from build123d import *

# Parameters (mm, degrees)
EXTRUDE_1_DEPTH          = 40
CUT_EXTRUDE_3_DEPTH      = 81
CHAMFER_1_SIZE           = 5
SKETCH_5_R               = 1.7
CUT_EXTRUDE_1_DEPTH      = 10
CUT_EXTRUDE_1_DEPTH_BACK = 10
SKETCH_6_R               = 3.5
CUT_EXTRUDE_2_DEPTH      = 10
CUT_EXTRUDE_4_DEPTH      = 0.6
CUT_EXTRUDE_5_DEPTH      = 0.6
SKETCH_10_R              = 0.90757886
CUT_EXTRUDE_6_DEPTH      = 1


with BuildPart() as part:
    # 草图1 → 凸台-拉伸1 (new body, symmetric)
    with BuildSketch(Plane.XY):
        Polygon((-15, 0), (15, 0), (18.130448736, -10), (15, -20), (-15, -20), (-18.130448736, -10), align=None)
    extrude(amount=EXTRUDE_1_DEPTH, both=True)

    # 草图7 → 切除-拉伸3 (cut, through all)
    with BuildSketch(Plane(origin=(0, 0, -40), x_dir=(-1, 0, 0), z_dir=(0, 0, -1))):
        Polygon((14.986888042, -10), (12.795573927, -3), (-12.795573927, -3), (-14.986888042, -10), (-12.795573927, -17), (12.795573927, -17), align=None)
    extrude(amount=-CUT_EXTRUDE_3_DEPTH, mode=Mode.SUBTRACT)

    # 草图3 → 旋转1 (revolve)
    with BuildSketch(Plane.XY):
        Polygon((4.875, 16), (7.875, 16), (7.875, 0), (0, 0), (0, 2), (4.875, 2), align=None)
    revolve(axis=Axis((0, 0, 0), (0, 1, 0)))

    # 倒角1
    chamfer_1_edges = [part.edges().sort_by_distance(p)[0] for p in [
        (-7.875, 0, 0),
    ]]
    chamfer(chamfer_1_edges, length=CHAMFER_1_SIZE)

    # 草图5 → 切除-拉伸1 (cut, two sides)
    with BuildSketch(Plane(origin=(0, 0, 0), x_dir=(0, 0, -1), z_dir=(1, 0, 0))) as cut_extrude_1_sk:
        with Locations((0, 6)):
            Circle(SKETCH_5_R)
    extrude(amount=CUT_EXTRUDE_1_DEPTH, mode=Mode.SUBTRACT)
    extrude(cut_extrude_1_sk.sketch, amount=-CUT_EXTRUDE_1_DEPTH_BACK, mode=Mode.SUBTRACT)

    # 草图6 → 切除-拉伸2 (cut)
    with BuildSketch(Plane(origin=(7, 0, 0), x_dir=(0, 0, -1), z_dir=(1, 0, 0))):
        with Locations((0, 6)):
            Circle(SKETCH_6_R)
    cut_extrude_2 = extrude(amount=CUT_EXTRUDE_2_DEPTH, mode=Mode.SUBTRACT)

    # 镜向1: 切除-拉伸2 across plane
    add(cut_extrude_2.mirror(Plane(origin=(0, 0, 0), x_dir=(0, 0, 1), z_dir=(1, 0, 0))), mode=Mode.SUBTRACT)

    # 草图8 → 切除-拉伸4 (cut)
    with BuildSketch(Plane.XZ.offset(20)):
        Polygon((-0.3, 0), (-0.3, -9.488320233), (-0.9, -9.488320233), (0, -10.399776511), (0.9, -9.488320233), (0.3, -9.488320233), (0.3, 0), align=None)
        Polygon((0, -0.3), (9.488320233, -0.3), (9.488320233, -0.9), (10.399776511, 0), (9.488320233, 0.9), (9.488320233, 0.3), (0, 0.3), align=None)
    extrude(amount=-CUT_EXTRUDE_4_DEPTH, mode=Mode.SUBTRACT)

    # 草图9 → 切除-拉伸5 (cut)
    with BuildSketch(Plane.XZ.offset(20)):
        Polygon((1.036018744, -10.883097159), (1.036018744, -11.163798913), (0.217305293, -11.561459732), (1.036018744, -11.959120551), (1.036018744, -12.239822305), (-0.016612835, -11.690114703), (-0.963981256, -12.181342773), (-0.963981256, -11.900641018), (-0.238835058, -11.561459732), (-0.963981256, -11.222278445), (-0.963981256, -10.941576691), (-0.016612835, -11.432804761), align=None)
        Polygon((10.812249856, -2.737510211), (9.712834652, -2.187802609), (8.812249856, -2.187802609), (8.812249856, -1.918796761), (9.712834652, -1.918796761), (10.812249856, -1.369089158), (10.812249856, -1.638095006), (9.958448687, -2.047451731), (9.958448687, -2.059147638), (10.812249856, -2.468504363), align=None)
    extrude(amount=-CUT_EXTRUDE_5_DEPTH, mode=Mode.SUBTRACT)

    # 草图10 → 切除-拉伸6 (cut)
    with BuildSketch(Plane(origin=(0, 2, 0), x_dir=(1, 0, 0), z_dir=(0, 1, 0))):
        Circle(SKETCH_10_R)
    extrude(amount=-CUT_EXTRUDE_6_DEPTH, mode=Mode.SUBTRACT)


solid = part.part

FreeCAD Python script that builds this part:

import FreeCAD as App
import Part
import Sketcher

V = App.Vector
Q = App.Units.Quantity


def edges_at(feature, points):
    """Names of the edges that pass closest to the given points."""
    edges = feature.Shape.Edges
    near = lambda p: min(range(len(edges)), key=lambda i: edges[i].distToShape(Part.Vertex(*p))[0])
    return sorted({f"Edge{near(p) + 1}" for p in points})


def add_polygon(sketch, points):
    """Adds a closed chain of lines whose ends are joined by coincident constraints."""
    first, n = sketch.GeometryCount, len(points)
    for a, b in zip(points, points[1:] + points[:1]):
        sketch.addGeometry(Part.LineSegment(App.Vector(*a, 0), App.Vector(*b, 0)), False)
    for i in range(n):
        sketch.addConstraint(Sketcher.Constraint("Coincident", first + i, 2, first + (i + 1) % n, 1))

doc = App.newDocument("Part")
body = doc.addObject("PartDesign::Body", "Body")

sketch1 = doc.addObject("Sketcher::SketchObject", "Sketch")
body.addObject(sketch1)
sketch1.AttachmentSupport = (doc.XY_Plane, [""])
sketch1.MapMode = "FlatFace"
add_polygon(sketch1, [(15, 0), (-15, 0), (-18, -10), (-15, -20), (15, -20), (18, -10)])
sketch1.addConstraint([
    Sketcher.Constraint("Horizontal", 0),
    Sketcher.Constraint("Horizontal", 3),
    Sketcher.Constraint("Symmetric", 0, 2, 5, 2, -1, 1),
    Sketcher.Constraint("Symmetric", 1, 2, 4, 2, -2),
    Sketcher.Constraint("Parallel", 1, 4),
    Sketcher.Constraint("Parallel", 2, 5),
    Sketcher.Constraint("Vertical", 0, 2, 2, 2),
    Sketcher.Constraint("DistanceX", 0, 2, 0, 1, Q("30 mm")),
    Sketcher.Constraint("DistanceY", 1, 2, -1, 1, Q("10 mm")),
    Sketcher.Constraint("DistanceX", 1, 2, -1, 1, Q("18.130449 mm")),
])
pad1 = doc.addObject("PartDesign::Pad", "Pad")
body.addObject(pad1)
pad1.Profile = sketch1
pad1.Length = 80
pad1.Midplane = True

sketch2 = doc.addObject("Sketcher::SketchObject", "Sketch001")
body.addObject(sketch2)
sketch2.AttachmentSupport = (doc.XY_Plane, [""])
sketch2.MapMode = "FlatFace"
sketch2.AttachmentOffset = App.Placement(V(0, 0, -40), App.Rotation())
add_polygon(sketch2, [(-15, -10), (-13, -3), (13, -3), (15, -10), (13, -17), (-13, -17)])
sketch2.addConstraint([
    Sketcher.Constraint("Horizontal", 1),
    Sketcher.Constraint("Horizontal", 4),
    Sketcher.Constraint("Symmetric", 2, 2, 5, 2, -2),
    Sketcher.Constraint("Parallel", 0, 3),
    Sketcher.Constraint("Parallel", 2, 5),
    Sketcher.Constraint("Vertical", 1, 2, 3, 2),
    Sketcher.Constraint("Vertical", 0, 2, 4, 2),
    Sketcher.Constraint("DistanceY", 0, 2, -1, 1, Q("3 mm")),
    Sketcher.Constraint("DistanceY", 2, 2, -1, 1, Q("10 mm")),
    Sketcher.Constraint("DistanceX", 1, 1, 1, 2, Q("25.591148 mm")),
    Sketcher.Constraint("DistanceX", -1, 1, 2, 2, Q("14.986888 mm")),
])
pocket1 = doc.addObject("PartDesign::Pocket", "Pocket")
body.addObject(pocket1)
pocket1.Profile = sketch2
pocket1.Type = "ThroughAll"
pocket1.Reversed = True

sketch3 = doc.addObject("Sketcher::SketchObject", "Sketch002")
body.addObject(sketch3)
sketch3.AttachmentSupport = (doc.XY_Plane, [""])
sketch3.MapMode = "FlatFace"
add_polygon(sketch3, [(7.9, 16), (4.9, 16), (4.9, 2), (0, 2), (0, 0), (7.9, 0)])
sketch3.addConstraint([
    Sketcher.Constraint("Horizontal", 0),
    Sketcher.Constraint("Vertical", 1),
    Sketcher.Constraint("Horizontal", 2),
    Sketcher.Constraint("Vertical", 3),
    Sketcher.Constraint("Horizontal", 4),
    Sketcher.Constraint("Vertical", 5),
    Sketcher.Constraint("Coincident", 3, 2, -1, 1),
    Sketcher.Constraint("DistanceX", 0, 2, 0, 1, Q("3 mm")),
    Sketcher.Constraint("DistanceY", 1, 2, 1, 1, Q("14 mm")),
    Sketcher.Constraint("DistanceY", 3, 2, 3, 1, Q("2 mm")),
    Sketcher.Constraint("DistanceX", 2, 2, 2, 1, Q("4.875 mm")),
])
revolution = doc.addObject("PartDesign::Revolution", "Revolution")
body.addObject(revolution)
revolution.Profile = sketch3
revolution.ReferenceAxis = (sketch3, ["V_Axis"])
revolution.Angle = 360
doc.recompute()

chamfer = doc.addObject("PartDesign::Chamfer", "Chamfer")
body.addObject(chamfer)
chamfer.Base = (revolution, edges_at(revolution, [(-7.875, 0, 0)]))
chamfer.Size = 5

sketch4 = doc.addObject("Sketcher::SketchObject", "Sketch003")
body.addObject(sketch4)
sketch4.AttachmentSupport = (doc.YZ_Plane, [""])
sketch4.MapMode = "FlatFace"
sketch4.addGeometry(Part.Circle(V(6, 0, 0), V(0, 0, 1), 1.7), False)
sketch4.addConstraint([
    Sketcher.Constraint("PointOnObject", 0, 3, -1),
    Sketcher.Constraint("Diameter", 0, Q("3.4 mm")),
    Sketcher.Constraint("DistanceX", -1, 1, 0, 3, Q("6 mm")),
])
pocket2 = doc.addObject("PartDesign::Pocket", "Pocket001")
body.addObject(pocket2)
pocket2.Profile = sketch4
pocket2.Type = "ThroughAll"
pocket2.Midplane = True

sketch5 = doc.addObject("Sketcher::SketchObject", "Sketch004")
body.addObject(sketch5)
sketch5.AttachmentSupport = (doc.YZ_Plane, [""])
sketch5.MapMode = "FlatFace"
sketch5.AttachmentOffset = App.Placement(V(0, 0, 7), App.Rotation())
sketch5.addGeometry(Part.Circle(V(6, 0, 0), V(0, 0, 1), 3.5), False)
sketch5.addConstraint([
    Sketcher.Constraint("PointOnObject", 0, 3, -1),
    Sketcher.Constraint("Diameter", 0, Q("7 mm")),
    Sketcher.Constraint("DistanceX", -1, 1, 0, 3, Q("6 mm")),
])
pocket3 = doc.addObject("PartDesign::Pocket", "Pocket002")
body.addObject(pocket3)
pocket3.Profile = sketch5
pocket3.Length = 10
pocket3.Reversed = True
doc.recompute()

mirrored = doc.addObject("PartDesign::Mirrored", "Mirrored")
body.addObject(mirrored)
mirrored.Originals = [pocket3]
mirrored.MirrorPlane = (doc.YZ_Plane, [""])
body.Tip = mirrored

sketch6 = doc.addObject("Sketcher::SketchObject", "Sketch005")
body.addObject(sketch6)
sketch6.AttachmentSupport = (doc.XZ_Plane, [""])
sketch6.MapMode = "FlatFace"
sketch6.AttachmentOffset = App.Placement(V(0, 0, 20), App.Rotation())
add_polygon(sketch6, [(0, 0), (-0.3, 0), (-0.3, -9.49), (-0.9, -9.49), (0, -10.4), (0.9, -9.49), (0.3, -9.49), (0.3, -0.3), (9.49, -0.3), (9.49, -0.9), (10.4, 0), (9.49, 0.9), (9.49, 0.3), (0, 0.3)])
sketch6.addConstraint([
    Sketcher.Constraint("Horizontal", 0),
    Sketcher.Constraint("Vertical", 1),
    Sketcher.Constraint("Horizontal", 2),
    Sketcher.Constraint("Horizontal", 5),
    Sketcher.Constraint("Vertical", 6),
    Sketcher.Constraint("Horizontal", 7),
    Sketcher.Constraint("Vertical", 8),
    Sketcher.Constraint("Vertical", 11),
    Sketcher.Constraint("Horizontal", 12),
    Sketcher.Constraint("Vertical", 13),
    Sketcher.Constraint("Coincident", 13, 2, -1, 1),
    Sketcher.Constraint("Symmetric", 2, 2, 4, 2, -2),
    Sketcher.Constraint("Symmetric", 8, 2, 10, 2, -1),
    Sketcher.Constraint("PointOnObject", 3, 2, -2),
    Sketcher.Constraint("PointOnObject", 9, 2, -1),
    Sketcher.Constraint("Perpendicular", 3, 9),
    Sketcher.Constraint("Equal", 2, 5),
    Sketcher.Constraint("Equal", 12, 1),
    Sketcher.Constraint("Equal", 7, 6),
    Sketcher.Constraint("Equal", 5, 8),
    Sketcher.Constraint("Equal", 8, 11),
    Sketcher.Constraint("DistanceX", 0, 2, 0, 1, Q("0.3 mm")),
    Sketcher.Constraint("DistanceX", 2, 2, 2, 1, Q("0.6 mm")),
    Sketcher.Constraint("DistanceX", 7, 1, 7, 2, Q("9.18832 mm")),
    Sketcher.Constraint("Distance", 3, Q("1.280919 mm")),
])
pocket4 = doc.addObject("PartDesign::Pocket", "Pocket003")
body.addObject(pocket4)
pocket4.Profile = sketch6
pocket4.Length = 0.6

sketch7 = doc.addObject("Sketcher::SketchObject", "Sketch006")
body.addObject(sketch7)
sketch7.AttachmentSupport = (doc.XZ_Plane, [""])
sketch7.MapMode = "FlatFace"
sketch7.AttachmentOffset = App.Placement(V(0, 0, 20), App.Rotation())
add_polygon(sketch7, [(1.036, -11.164), (1.036, -10.883), (-0.017, -11.433), (-0.964, -10.942), (-0.964, -11.222), (-0.239, -11.561), (-0.964, -11.901), (-0.964, -12.181), (-0.017, -11.69), (1.036, -12.24), (1.036, -11.959), (0.217, -11.561)])
add_polygon(sketch7, [(9.713, -2.188), (10.812, -2.738), (10.812, -2.469), (9.958, -2.059), (9.958, -2.047), (10.812, -1.638), (10.812, -1.369), (9.713, -1.919), (8.812, -1.919), (8.812, -2.188)])
sketch7.addConstraint([
    Sketcher.Constraint("Vertical", 0),
    Sketcher.Constraint("Vertical", 3),
    Sketcher.Constraint("Vertical", 6),
    Sketcher.Constraint("Vertical", 9),
    Sketcher.Constraint("Vertical", 13),
    Sketcher.Constraint("Vertical", 15),
    Sketcher.Constraint("Vertical", 17),
    Sketcher.Constraint("Horizontal", 19),
    Sketcher.Constraint("Vertical", 20),
    Sketcher.Constraint("Horizontal", 21),
    Sketcher.Constraint("Horizontal", 4, 2, 10, 2),
    Sketcher.Constraint("Vertical", 3, 2, 5, 2),
    Sketcher.Constraint("Vertical", 1, 2, 7, 2),
    Sketcher.Constraint("Vertical", 0, 2, 8, 2),
    Sketcher.Constraint("Vertical", 13, 2, 16, 2),
    Sketcher.Constraint("Vertical", 18, 2, 21, 2),
    Sketcher.Constraint("Equal", 0, 3),
    Sketcher.Constraint("Equal", 3, 6),
    Sketcher.Constraint("Equal", 6, 9),
    Sketcher.Constraint("Equal", 13, 17),
    Sketcher.Constraint("Equal", 17, 20),
    Sketcher.Constraint("Equal", 4, 5),
    Sketcher.Constraint("Equal", 2, 7),
    Sketcher.Constraint("Equal", 1, 8),
    Sketcher.Constraint("Equal", 14, 16),
    Sketcher.Constraint("Equal", 12, 18),
    Sketcher.Constraint("DistanceX", 2, 2, 0, 2, Q("2 mm")),
    Sketcher.Constraint("DistanceX", 19, 2, 16, 2, Q("2 mm")),
    Sketcher.Constraint("DistanceY", 0, 1, 0, 2, Q("0.280702 mm")),
    Sketcher.Constraint("DistanceY", 11, 2, -1, 1, Q("11.163799 mm")),
    Sketcher.Constraint("DistanceX", 14, 2, 13, 2, Q("0.853801 mm")),
    Sketcher.Constraint("DistanceY", 18, 2, 16, 2, Q("0.280702 mm")),
    Sketcher.Constraint("Distance", 2, Q("1.067151 mm")),
    Sketcher.Constraint("Distance", 4, Q("0.80055 mm")),
    Sketcher.Constraint("Distance", 10, Q("0.910179 mm")),
    Sketcher.Constraint("DistanceX", 19, 2, 19, 1, Q("0.900585 mm")),
    Sketcher.Constraint("DistanceY", 13, 1, 13, 2, Q("0.269006 mm")),
    Sketcher.Constraint("DistanceY", 15, 1, 15, 2, Q("0.011696 mm")),
    Sketcher.Constraint("DistanceX", -1, 1, 0, 2, Q("1.036019 mm")),
    Sketcher.Constraint("DistanceY", 3, 2, -1, 1, Q("11.222278 mm")),
    Sketcher.Constraint("DistanceY", 4, 2, -1, 1, Q("11.56146 mm")),
    Sketcher.Constraint("DistanceX", -1, 1, 12, 2, Q("10.81225 mm")),
    Sketcher.Constraint("DistanceY", 12, 2, -1, 1, Q("2.73751 mm")),
    Sketcher.Constraint("DistanceX", 1, 2, 0, 2, Q("1.052632 mm")),
])
pocket5 = doc.addObject("PartDesign::Pocket", "Pocket004")
body.addObject(pocket5)
pocket5.Profile = sketch7
pocket5.Length = 0.6

sketch8 = doc.addObject("Sketcher::SketchObject", "Sketch007")
body.addObject(sketch8)
sketch8.AttachmentSupport = (doc.XZ_Plane, [""])
sketch8.MapMode = "FlatFace"
sketch8.AttachmentOffset = App.Placement(V(0, 0, -2), App.Rotation())
sketch8.addGeometry(Part.Circle(V(0, 0, 0), V(0, 0, 1), 0.9), False)
sketch8.addConstraint([
    Sketcher.Constraint("Coincident", 0, 3, -1, 1),
    Sketcher.Constraint("Diameter", 0, Q("1.815158 mm")),
])
pocket6 = doc.addObject("PartDesign::Pocket", "Pocket005")
body.addObject(pocket6)
pocket6.Profile = sketch8
pocket6.Length = 1
pocket6.Reversed = True

doc.recompute()
